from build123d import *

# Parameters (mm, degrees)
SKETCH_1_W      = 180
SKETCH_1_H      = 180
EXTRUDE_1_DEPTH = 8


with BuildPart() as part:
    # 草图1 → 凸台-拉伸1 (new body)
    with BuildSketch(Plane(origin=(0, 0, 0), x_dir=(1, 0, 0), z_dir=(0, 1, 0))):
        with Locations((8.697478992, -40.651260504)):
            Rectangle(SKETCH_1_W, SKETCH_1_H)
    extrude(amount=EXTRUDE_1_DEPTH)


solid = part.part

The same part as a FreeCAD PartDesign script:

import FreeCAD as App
import Part
import Sketcher

doc = App.newDocument("Part")
body = doc.addObject("PartDesign::Body", "Body")

sketch1 = body.newObject("Sketcher::SketchObject", "Sketch")
sketch1.AttachmentSupport = (doc.getObject("XZ_Plane"), [""])
sketch1.MapMode = "FlatFace"
sketch1.addGeometry([
    Part.LineSegment(App.Vector(-81.302521, -49.348739, 0), App.Vector(-81.302521, 130.651261, 0)),
    Part.LineSegment(App.Vector(-81.302521, 130.651261, 0), App.Vector(98.697479, 130.651261, 0)),
    Part.LineSegment(App.Vector(98.697479, 130.651261, 0), App.Vector(98.697479, -49.348739, 0)),
    Part.LineSegment(App.Vector(98.697479, -49.348739, 0), App.Vector(-81.302521, -49.348739, 0)),
], False)
sketch1.addConstraint([
    Sketcher.Constraint("Coincident", 0, 2, 1, 1),
    Sketcher.Constraint("Coincident", 1, 2, 2, 1),
    Sketcher.Constraint("Coincident", 2, 2, 3, 1),
    Sketcher.Constraint("Coincident", 3, 2, 0, 1),
    Sketcher.Constraint("Vertical", 0),
    Sketcher.Constraint("Horizontal", 1),
    Sketcher.Constraint("Vertical", 2),
    Sketcher.Constraint("Horizontal", 3),
    Sketcher.Constraint("Equal", 3, 0),
    Sketcher.Constraint("DistanceX", 1, 1, 1, 2, 180.0),
    Sketcher.Constraint("DistanceX", 0, 2, -1, 1, 81.302521),
    Sketcher.Constraint("DistanceY", -1, 1, 0, 2, 130.651261),
])
pad1 = body.newObject("PartDesign::Pad", "Pad")
pad1.Profile = sketch1
pad1.Length = 8
pad1.Reversed = True

doc.recompute()
